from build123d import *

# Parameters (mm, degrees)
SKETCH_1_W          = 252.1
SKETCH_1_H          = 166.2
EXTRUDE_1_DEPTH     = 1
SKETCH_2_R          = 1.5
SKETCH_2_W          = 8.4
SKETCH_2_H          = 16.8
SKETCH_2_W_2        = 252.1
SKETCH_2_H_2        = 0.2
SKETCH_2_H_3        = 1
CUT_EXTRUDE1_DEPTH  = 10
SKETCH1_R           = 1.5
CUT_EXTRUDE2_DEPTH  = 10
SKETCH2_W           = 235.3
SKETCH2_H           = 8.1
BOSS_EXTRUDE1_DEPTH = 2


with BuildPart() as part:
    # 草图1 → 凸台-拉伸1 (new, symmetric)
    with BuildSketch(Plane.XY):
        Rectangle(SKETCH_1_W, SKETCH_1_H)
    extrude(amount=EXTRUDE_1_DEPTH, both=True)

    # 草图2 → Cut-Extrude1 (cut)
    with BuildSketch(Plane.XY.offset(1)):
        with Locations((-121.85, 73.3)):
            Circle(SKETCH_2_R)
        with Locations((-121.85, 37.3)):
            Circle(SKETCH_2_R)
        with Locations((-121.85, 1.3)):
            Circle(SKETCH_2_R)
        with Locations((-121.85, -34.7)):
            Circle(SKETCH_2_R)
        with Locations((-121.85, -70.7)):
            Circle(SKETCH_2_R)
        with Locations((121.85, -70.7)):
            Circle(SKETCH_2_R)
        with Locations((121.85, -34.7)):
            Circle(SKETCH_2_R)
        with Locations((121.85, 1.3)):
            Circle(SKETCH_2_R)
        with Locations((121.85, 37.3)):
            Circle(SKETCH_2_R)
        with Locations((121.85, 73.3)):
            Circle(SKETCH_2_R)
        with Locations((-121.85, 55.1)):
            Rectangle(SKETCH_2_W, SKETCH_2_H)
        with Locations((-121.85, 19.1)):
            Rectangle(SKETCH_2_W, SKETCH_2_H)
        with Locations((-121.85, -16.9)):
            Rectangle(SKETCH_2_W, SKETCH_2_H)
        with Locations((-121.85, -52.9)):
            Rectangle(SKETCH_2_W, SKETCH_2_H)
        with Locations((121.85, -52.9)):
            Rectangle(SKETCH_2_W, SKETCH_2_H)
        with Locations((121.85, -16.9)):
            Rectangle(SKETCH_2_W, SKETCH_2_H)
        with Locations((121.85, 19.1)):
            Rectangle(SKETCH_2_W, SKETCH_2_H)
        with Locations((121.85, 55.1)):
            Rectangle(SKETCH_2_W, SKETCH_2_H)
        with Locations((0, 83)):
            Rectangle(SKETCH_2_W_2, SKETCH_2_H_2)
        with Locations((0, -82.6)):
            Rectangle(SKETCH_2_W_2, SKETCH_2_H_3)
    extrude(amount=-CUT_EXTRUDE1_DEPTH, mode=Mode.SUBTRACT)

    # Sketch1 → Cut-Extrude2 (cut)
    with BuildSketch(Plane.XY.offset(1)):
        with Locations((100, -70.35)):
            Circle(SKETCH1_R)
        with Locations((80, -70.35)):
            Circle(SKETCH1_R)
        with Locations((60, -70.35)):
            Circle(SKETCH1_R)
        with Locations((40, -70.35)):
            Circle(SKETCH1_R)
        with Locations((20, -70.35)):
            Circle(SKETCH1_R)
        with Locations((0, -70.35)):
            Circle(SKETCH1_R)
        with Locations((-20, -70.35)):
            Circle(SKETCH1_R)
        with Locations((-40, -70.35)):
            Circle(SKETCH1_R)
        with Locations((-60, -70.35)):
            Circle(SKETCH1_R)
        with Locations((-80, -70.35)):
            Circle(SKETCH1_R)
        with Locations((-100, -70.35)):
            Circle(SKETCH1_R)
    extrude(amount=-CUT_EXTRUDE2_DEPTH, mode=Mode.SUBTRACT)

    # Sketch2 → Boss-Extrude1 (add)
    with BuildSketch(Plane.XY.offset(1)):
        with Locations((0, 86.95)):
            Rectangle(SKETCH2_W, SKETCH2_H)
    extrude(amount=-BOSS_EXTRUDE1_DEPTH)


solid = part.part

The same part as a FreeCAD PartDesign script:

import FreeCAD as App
import Part
import Sketcher
Q = App.Units.Quantity

doc = App.newDocument("Part")
params = doc.addObject("Spreadsheet::Sheet", "Params")
for row, (alias, value) in enumerate([
    ("sketch1_width", "252.1 mm"),
    ("sketch1_height", "166.2 mm"),
    ("pad1_length", "2 mm"),
    ("sketch2_diameter", "3 mm"),
    ("sketch2_height", "1 mm"),
    ("sketch2_width", "8.4 mm"),
    ("sketch2_width2", "252.1 mm"),
    ("sketch2_height2", "16.8 mm"),
    ("pocket1_length", "10 mm"),
    ("sketch3_diameter", "3 mm"),
    ("pocket2_length", "10 mm"),
    ("sketch4_width", "235.3 mm"),
    ("sketch4_height", "8.1 mm"),
    ("pad2_length", "2 mm"),
], start=1):
    params.set(f"A{row}", alias)
    params.set(f"B{row}", "=" + value)
    params.setAlias(f"B{row}", alias)

body = doc.addObject("PartDesign::Body", "Body")

# Sketch on XY plane
sketch1 = doc.addObject("Sketcher::SketchObject", "Sketch")
body.addObject(sketch1)
sketch1.AttachmentSupport = (doc.XY_Plane, [""])
sketch1.MapMode = "FlatFace"
sketch1.addGeometry(Part.LineSegment(App.Vector(-126, 83, 0), App.Vector(-126, -83, 0)), False)
sketch1.addGeometry(Part.LineSegment(App.Vector(-126, -83, 0), App.Vector(126, -83, 0)), False)
sketch1.addGeometry(Part.LineSegment(App.Vector(126, -83, 0), App.Vector(126, 83, 0)), False)
sketch1.addGeometry(Part.LineSegment(App.Vector(126, 83, 0), App.Vector(-126, 83, 0)), False)
sketch1.addConstraint(Sketcher.Constraint("Coincident", 0, 2, 1, 1))
sketch1.addConstraint(Sketcher.Constraint("Coincident", 1, 2, 2, 1))
sketch1.addConstraint(Sketcher.Constraint("Coincident", 2, 2, 3, 1))
sketch1.addConstraint(Sketcher.Constraint("Coincident", 3, 2, 0, 1))
sketch1.addConstraint(Sketcher.Constraint("Vertical", 0))
sketch1.addConstraint(Sketcher.Constraint("Horizontal", 1))
sketch1.addConstraint(Sketcher.Constraint("Vertical", 2))
sketch1.addConstraint(Sketcher.Constraint("Horizontal", 3))
sketch1.addConstraint(Sketcher.Constraint("Symmetric", 0, 2, 2, 2, -1, 1))
sketch1.addConstraint(Sketcher.Constraint("DistanceX", 1, 1, 1, 2, Q("252.1 mm")))
sketch1.addConstraint(Sketcher.Constraint("DistanceY", 0, 2, 0, 1, Q("166.2 mm")))
sketch1.setExpression("Constraints[9]", "Params.sketch1_width")
sketch1.setExpression("Constraints[10]", "Params.sketch1_height")
pad1 = doc.addObject("PartDesign::Pad", "Pad")
body.addObject(pad1)
pad1.Profile = sketch1
pad1.setExpression("Length", "Params.pad1_length")
pad1.Midplane = True

# Sketch on XY plane
sketch2 = doc.addObject("Sketcher::SketchObject", "Sketch001")
body.addObject(sketch2)
sketch2.AttachmentSupport = (doc.XY_Plane, [""])
sketch2.MapMode = "FlatFace"
sketch2.AttachmentOffset = App.Placement(App.Vector(0, 0, 1), App.Rotation())
sketch2.addGeometry(Part.Circle(App.Vector(-121.85, 73.3, 0), App.Vector(0, 0, 1), 1.5), False)
sketch2.addGeometry(Part.Circle(App.Vector(-121.85, 37.3, 0), App.Vector(0, 0, 1), 1.5), False)
sketch2.addGeometry(Part.Circle(App.Vector(-121.85, 1.3, 0), App.Vector(0, 0, 1), 1.5), False)
sketch2.addGeometry(Part.Circle(App.Vector(-121.85, -34.7, 0), App.Vector(0, 0, 1), 1.5), False)
sketch2.addGeometry(Part.Circle(App.Vector(-121.85, -70.7, 0), App.Vector(0, 0, 1), 1.5), False)
sketch2.addGeometry(Part.Circle(App.Vector(121.85, -70.7, 0), App.Vector(0, 0, 1), 1.5), False)
sketch2.addGeometry(Part.Circle(App.Vector(121.85, -34.7, 0), App.Vector(0, 0, 1), 1.5), False)
sketch2.addGeometry(Part.Circle(App.Vector(121.85, 1.3, 0), App.Vector(0, 0, 1), 1.5), False)
sketch2.addGeometry(Part.Circle(App.Vector(121.85, 37.3, 0), App.Vector(0, 0, 1), 1.5), False)
sketch2.addGeometry(Part.Circle(App.Vector(121.85, 73.3, 0), App.Vector(0, 0, 1), 1.5), False)
sketch2.addGeometry(Part.LineSegment(App.Vector(-126.05, 63.5, 0), App.Vector(-126.05, 46.7, 0)), False)
sketch2.addGeometry(Part.LineSegment(App.Vector(-126.05, 46.7, 0), App.Vector(-117.65, 46.7, 0)), False)
sketch2.addGeometry(Part.LineSegment(App.Vector(-117.65, 46.7, 0), App.Vector(-117.65, 63.5, 0)), False)
sketch2.addGeometry(Part.LineSegment(App.Vector(-117.65, 63.5, 0), App.Vector(-126.05, 63.5, 0)), False)
sketch2.addGeometry(Part.LineSegment(App.Vector(-126.05, 27.5, 0), App.Vector(-126.05, 10.7, 0)), False)
sketch2.addGeometry(Part.LineSegment(App.Vector(-126.05, 10.7, 0), App.Vector(-117.65, 10.7, 0)), False)
sketch2.addGeometry(Part.LineSegment(App.Vector(-117.65, 10.7, 0), App.Vector(-117.65, 27.5, 0)), False)
sketch2.addGeometry(Part.LineSegment(App.Vector(-117.65, 27.5, 0), App.Vector(-126.05, 27.5, 0)), False)
sketch2.addGeometry(Part.LineSegment(App.Vector(-126.05, -8.5, 0), App.Vector(-126.05, -25.3, 0)), False)
sketch2.addGeometry(Part.LineSegment(App.Vector(-126.05, -25.3, 0), App.Vector(-117.65, -25.3, 0)), False)
sketch2.addGeometry(Part.LineSegment(App.Vector(-117.65, -25.3, 0), App.Vector(-117.65, -8.5, 0)), False)
sketch2.addGeometry(Part.LineSegment(App.Vector(-117.65, -8.5, 0), App.Vector(-126.05, -8.5, 0)), False)
sketch2.addGeometry(Part.LineSegment(App.Vector(-126.05, -44.5, 0), App.Vector(-126.05, -61.3, 0)), False)
sketch2.addGeometry(Part.LineSegment(App.Vector(-126.05, -61.3, 0), App.Vector(-117.65, -61.3, 0)), False)
sketch2.addGeometry(Part.LineSegment(App.Vector(-117.65, -61.3, 0), App.Vector(-117.65, -44.5, 0)), False)
sketch2.addGeometry(Part.LineSegment(App.Vector(-117.65, -44.5, 0), App.Vector(-126.05, -44.5, 0)), False)
sketch2.addGeometry(Part.LineSegment(App.Vector(117.65, -44.5, 0), App.Vector(117.65, -61.3, 0)), False)
sketch2.addGeometry(Part.LineSegment(App.Vector(117.65, -61.3, 0), App.Vector(126.05, -61.3, 0)), False)
sketch2.addGeometry(Part.LineSegment(App.Vector(126.05, -61.3, 0), App.Vector(126.05, -44.5, 0)), False)
sketch2.addGeometry(Part.LineSegment(App.Vector(126.05, -44.5, 0), App.Vector(117.65, -44.5, 0)), False)
sketch2.addGeometry(Part.LineSegment(App.Vector(117.65, -8.5, 0), App.Vector(117.65, -25.3, 0)), False)
sketch2.addGeometry(Part.LineSegment(App.Vector(117.65, -25.3, 0), App.Vector(126.05, -25.3, 0)), False)
sketch2.addGeometry(Part.LineSegment(App.Vector(126.05, -25.3, 0), App.Vector(126.05, -8.5, 0)), False)
sketch2.addGeometry(Part.LineSegment(App.Vector(126.05, -8.5, 0), App.Vector(117.65, -8.5, 0)), False)
sketch2.addGeometry(Part.LineSegment(App.Vector(117.65, 27.5, 0), App.Vector(117.65, 10.7, 0)), False)
sketch2.addGeometry(Part.LineSegment(App.Vector(117.65, 10.7, 0), App.Vector(126.05, 10.7, 0)), False)
sketch2.addGeometry(Part.LineSegment(App.Vector(126.05, 10.7, 0), App.Vector(126.05, 27.5, 0)), False)
sketch2.addGeometry(Part.LineSegment(App.Vector(126.05, 27.5, 0), App.Vector(117.65, 27.5, 0)), False)
sketch2.addGeometry(Part.LineSegment(App.Vector(117.65, 63.5, 0), App.Vector(117.65, 46.7, 0)), False)
sketch2.addGeometry(Part.LineSegment(App.Vector(117.65, 46.7, 0), App.Vector(126.05, 46.7, 0)), False)
sketch2.addGeometry(Part.LineSegment(App.Vector(126.05, 46.7, 0), App.Vector(126.05, 63.5, 0)), False)
sketch2.addGeometry(Part.LineSegment(App.Vector(126.05, 63.5, 0), App.Vector(117.65, 63.5, 0)), False)
sketch2.addGeometry(Part.LineSegment(App.Vector(-126.05, 83.1, 0), App.Vector(-126.05, 82.9, 0)), False)
sketch2.addGeometry(Part.LineSegment(App.Vector(-126.05, 82.9, 0), App.Vector(126.05, 82.9, 0)), False)
sketch2.addGeometry(Part.LineSegment(App.Vector(126.05, 82.9, 0), App.Vector(126.05, 83.1, 0)), False)
sketch2.addGeometry(Part.LineSegment(App.Vector(126.05, 83.1, 0), App.Vector(-126.05, 83.1, 0)), False)
sketch2.addGeometry(Part.LineSegment(App.Vector(-126.05, -82.1, 0), App.Vector(-126.05, -83.1, 0)), False)
sketch2.addGeometry(Part.LineSegment(App.Vector(-126.05, -83.1, 0), App.Vector(126.05, -83.1, 0)), False)
sketch2.addGeometry(Part.LineSegment(App.Vector(126.05, -83.1, 0), App.Vector(126.05, -82.1, 0)), False)
sketch2.addGeometry(Part.LineSegment(App.Vector(126.05, -82.1, 0), App.Vector(-126.05, -82.1, 0)), False)
sketch2.addConstraint(Sketcher.Constraint("Coincident", 10, 2, 11, 1))
sketch2.addConstraint(Sketcher.Constraint("Coincident", 11, 2, 12, 1))
sketch2.addConstraint(Sketcher.Constraint("Coincident", 12, 2, 13, 1))
sketch2.addConstraint(Sketcher.Constraint("Coincident", 13, 2, 10, 1))
sketch2.addConstraint(Sketcher.Constraint("Coincident", 14, 2, 15, 1))
sketch2.addConstraint(Sketcher.Constraint("Coincident", 15, 2, 16, 1))
sketch2.addConstraint(Sketcher.Constraint("Coincident", 16, 2, 17, 1))
sketch2.addConstraint(Sketcher.Constraint("Coincident", 17, 2, 14, 1))
sketch2.addConstraint(Sketcher.Constraint("Coincident", 18, 2, 19, 1))
sketch2.addConstraint(Sketcher.Constraint("Coincident", 19, 2, 20, 1))
sketch2.addConstraint(Sketcher.Constraint("Coincident", 20, 2, 21, 1))
sketch2.addConstraint(Sketcher.Constraint("Coincident", 21, 2, 18, 1))
sketch2.addConstraint(Sketcher.Constraint("Coincident", 22, 2, 23, 1))
sketch2.addConstraint(Sketcher.Constraint("Coincident", 23, 2, 24, 1))
sketch2.addConstraint(Sketcher.Constraint("Coincident", 24, 2, 25, 1))
sketch2.addConstraint(Sketcher.Constraint("Coincident", 25, 2, 22, 1))
sketch2.addConstraint(Sketcher.Constraint("Coincident", 26, 2, 27, 1))
sketch2.addConstraint(Sketcher.Constraint("Coincident", 27, 2, 28, 1))
sketch2.addConstraint(Sketcher.Constraint("Coincident", 28, 2, 29, 1))
sketch2.addConstraint(Sketcher.Constraint("Coincident", 29, 2, 26, 1))
sketch2.addConstraint(Sketcher.Constraint("Coincident", 30, 2, 31, 1))
sketch2.addConstraint(Sketcher.Constraint("Coincident", 31, 2, 32, 1))
sketch2.addConstraint(Sketcher.Constraint("Coincident", 32, 2, 33, 1))
sketch2.addConstraint(Sketcher.Constraint("Coincident", 33, 2, 30, 1))
sketch2.addConstraint(Sketcher.Constraint("Coincident", 34, 2, 35, 1))
sketch2.addConstraint(Sketcher.Constraint("Coincident", 35, 2, 36, 1))
sketch2.addConstraint(Sketcher.Constraint("Coincident", 36, 2, 37, 1))
sketch2.addConstraint(Sketcher.Constraint("Coincident", 37, 2, 34, 1))
sketch2.addConstraint(Sketcher.Constraint("Coincident", 38, 2, 39, 1))
sketch2.addConstraint(Sketcher.Constraint("Coincident", 39, 2, 40, 1))
sketch2.addConstraint(Sketcher.Constraint("Coincident", 40, 2, 41, 1))
sketch2.addConstraint(Sketcher.Constraint("Coincident", 41, 2, 38, 1))
sketch2.addConstraint(Sketcher.Constraint("Coincident", 42, 2, 43, 1))
sketch2.addConstraint(Sketcher.Constraint("Coincident", 43, 2, 44, 1))
sketch2.addConstraint(Sketcher.Constraint("Coincident", 44, 2, 45, 1))
sketch2.addConstraint(Sketcher.Constraint("Coincident", 45, 2, 42, 1))
sketch2.addConstraint(Sketcher.Constraint("Coincident", 46, 2, 47, 1))
sketch2.addConstraint(Sketcher.Constraint("Coincident", 47, 2, 48, 1))
sketch2.addConstraint(Sketcher.Constraint("Coincident", 48, 2, 49, 1))
sketch2.addConstraint(Sketcher.Constraint("Coincident", 49, 2, 46, 1))
sketch2.addConstraint(Sketcher.Constraint("Vertical", 10))
sketch2.addConstraint(Sketcher.Constraint("Horizontal", 11))
sketch2.addConstraint(Sketcher.Constraint("Vertical", 12))
sketch2.addConstraint(Sketcher.Constraint("Horizontal", 13))
sketch2.addConstraint(Sketcher.Constraint("Vertical", 14))
sketch2.addConstraint(Sketcher.Constraint("Horizontal", 15))
sketch2.addConstraint(Sketcher.Constraint("Vertical", 16))
sketch2.addConstraint(Sketcher.Constraint("Horizontal", 17))
sketch2.addConstraint(Sketcher.Constraint("Vertical", 18))
sketch2.addConstraint(Sketcher.Constraint("Horizontal", 19))
sketch2.addConstraint(Sketcher.Constraint("Vertical", 20))
sketch2.addConstraint(Sketcher.Constraint("Horizontal", 21))
sketch2.addConstraint(Sketcher.Constraint("Vertical", 22))
sketch2.addConstraint(Sketcher.Constraint("Horizontal", 23))
sketch2.addConstraint(Sketcher.Constraint("Vertical", 24))
sketch2.addConstraint(Sketcher.Constraint("Horizontal", 25))
sketch2.addConstraint(Sketcher.Constraint("Vertical", 26))
sketch2.addConstraint(Sketcher.Constraint("Horizontal", 27))
sketch2.addConstraint(Sketcher.Constraint("Vertical", 28))
sketch2.addConstraint(Sketcher.Constraint("Horizontal", 29))
sketch2.addConstraint(Sketcher.Constraint("Vertical", 30))
sketch2.addConstraint(Sketcher.Constraint("Horizontal", 31))
sketch2.addConstraint(Sketcher.Constraint("Vertical", 32))
sketch2.addConstraint(Sketcher.Constraint("Horizontal", 33))
sketch2.addConstraint(Sketcher.Constraint("Vertical", 34))
sketch2.addConstraint(Sketcher.Constraint("Horizontal", 35))
sketch2.addConstraint(Sketcher.Constraint("Vertical", 36))
sketch2.addConstraint(Sketcher.Constraint("Horizontal", 37))
sketch2.addConstraint(Sketcher.Constraint("Vertical", 38))
sketch2.addConstraint(Sketcher.Constraint("Horizontal", 39))
sketch2.addConstraint(Sketcher.Constraint("Vertical", 40))
sketch2.addConstraint(Sketcher.Constraint("Horizontal", 41))
sketch2.addConstraint(Sketcher.Constraint("Vertical", 42))
sketch2.addConstraint(Sketcher.Constraint("Horizontal", 43))
sketch2.addConstraint(Sketcher.Constraint("Vertical", 44))
sketch2.addConstraint(Sketcher.Constraint("Horizontal", 45))
sketch2.addConstraint(Sketcher.Constraint("Vertical", 46))
sketch2.addConstraint(Sketcher.Constraint("Horizontal", 47))
sketch2.addConstraint(Sketcher.Constraint("Vertical", 48))
sketch2.addConstraint(Sketcher.Constraint("Horizontal", 49))
sketch2.addConstraint(Sketcher.Constraint("Equal", 0, 1))
sketch2.addConstraint(Sketcher.Constraint("Equal", 1, 2))
sketch2.addConstraint(Sketcher.Constraint("Equal", 2, 3))
sketch2.addConstraint(Sketcher.Constraint("Equal", 3, 4))
sketch2.addConstraint(Sketcher.Constraint("Equal", 4, 5))
sketch2.addConstraint(Sketcher.Constraint("Equal", 5, 6))
sketch2.addConstraint(Sketcher.Constraint("Equal", 6, 7))
sketch2.addConstraint(Sketcher.Constraint("Equal", 7, 8))
sketch2.addConstraint(Sketcher.Constraint("Equal", 8, 9))
sketch2.addConstraint(Sketcher.Constraint("Symmetric", 44, 2, 46, 2, -1, 1))
sketch2.addConstraint(Sketcher.Constraint("Symmetric", 4, 3, 5, 3, -2))
sketch2.addConstraint(Sketcher.Constraint("Symmetric", 3, 3, 6, 3, -2))
sketch2.addConstraint(Sketcher.Constraint("Symmetric", 2, 3, 7, 3, -2))
sketch2.addConstraint(Sketcher.Constraint("Symmetric", 1, 3, 8, 3, -2))
sketch2.addConstraint(Sketcher.Constraint("Symmetric", 0, 3, 9, 3, -2))
sketch2.addConstraint(Sketcher.Constraint("Symmetric", 23, 2, 26, 2, -2))
sketch2.addConstraint(Sketcher.Constraint("Symmetric", 25, 2, 28, 2, -2))
sketch2.addConstraint(Sketcher.Constraint("Symmetric", 19, 2, 30, 2, -2))
sketch2.addConstraint(Sketcher.Constraint("Symmetric", 21, 2, 32, 2, -2))
sketch2.addConstraint(Sketcher.Constraint("Symmetric", 15, 2, 34, 2, -2))
sketch2.addConstraint(Sketcher.Constraint("Symmetric", 17, 2, 36, 2, -2))
sketch2.addConstraint(Sketcher.Constraint("Symmetric", 11, 2, 38, 2, -2))
sketch2.addConstraint(Sketcher.Constraint("Symmetric", 13, 2, 40, 2, -2))
sketch2.addConstraint(Sketcher.Constraint("Vertical", 0, 3, 1, 3))
sketch2.addConstraint(Sketcher.Constraint("Vertical", 1, 3, 2, 3))
sketch2.addConstraint(Sketcher.Constraint("Vertical", 2, 3, 3, 3))
sketch2.addConstraint(Sketcher.Constraint("Vertical", 3, 3, 4, 3))
sketch2.addConstraint(Sketcher.Constraint("Vertical", 13, 2, 14, 2))
sketch2.addConstraint(Sketcher.Constraint("Vertical", 12, 2, 15, 2))
sketch2.addConstraint(Sketcher.Constraint("Vertical", 17, 2, 18, 2))
sketch2.addConstraint(Sketcher.Constraint("Vertical", 16, 2, 19, 2))
sketch2.addConstraint(Sketcher.Constraint("Vertical", 21, 2, 22, 2))
sketch2.addConstraint(Sketcher.Constraint("Vertical", 20, 2, 23, 2))
sketch2.addConstraint(Sketcher.Constraint("Vertical", 25, 2, 42, 2))
sketch2.addConstraint(Sketcher.Constraint("Vertical", 40, 2, 43, 2))
sketch2.addConstraint(Sketcher.Constraint("Vertical", 44, 2, 47, 2))
sketch2.addConstraint(Sketcher.Constraint("Equal", 12, 14))
sketch2.addConstraint(Sketcher.Constraint("Equal", 16, 18))
sketch2.addConstraint(Sketcher.Constraint("Equal", 20, 22))
sketch2.addConstraint(Sketcher.Constraint("Diameter", 0, Q("3 mm")))
sketch2.addConstraint(Sketcher.Constraint("DistanceY", 46, 2, 46, 1, Q("1 mm")))
sketch2.addConstraint(Sketcher.Constraint("DistanceX", 11, 1, 11, 2, Q("8.4 mm")))
sketch2.addConstraint(Sketcher.Constraint("DistanceX", 43, 1, 43, 2, Q("252.1 mm")))
sketch2.addConstraint(Sketcher.Constraint("DistanceY", 10, 2, 10, 1, Q("16.8 mm")))
sketch2.addConstraint(Sketcher.Constraint("DistanceY", 42, 2, 42, 1, Q("0.2 mm")))
sketch2.addConstraint(Sketcher.Constraint("DistanceY", 1, 3, 0, 3, Q("36 mm")))
sketch2.addConstraint(Sketcher.Constraint("DistanceY", 2, 3, 1, 3, Q("36 mm")))
sketch2.addConstraint(Sketcher.Constraint("DistanceY", 3, 3, 2, 3, Q("36 mm")))
sketch2.addConstraint(Sketcher.Constraint("DistanceY", 4, 3, 3, 3, Q("36 mm")))
sketch2.addConstraint(Sketcher.Constraint("DistanceY", 14, 2, 10, 2, Q("36 mm")))
sketch2.addConstraint(Sketcher.Constraint("DistanceY", 18, 2, 14, 2, Q("36 mm")))
sketch2.addConstraint(Sketcher.Constraint("DistanceY", 22, 2, 18, 2, Q("36 mm")))
sketch2.addConstraint(Sketcher.Constraint("DistanceY", -1, 1, 0, 3, Q("73.3 mm")))
sketch2.addConstraint(Sketcher.Constraint("DistanceY", -1, 1, 10, 2, Q("46.7 mm")))
sketch2.addConstraint(Sketcher.Constraint("DistanceY", -1, 1, 42, 2, Q("82.9 mm")))
sketch2.addConstraint(Sketcher.Constraint("DistanceX", 4, 3, 5, 3, Q("243.7 mm")))
sketch2.setExpression("Constraints[119]", "Params.sketch2_diameter")
sketch2.setExpression("Constraints[120]", "Params.sketch2_height")
sketch2.setExpression("Constraints[121]", "Params.sketch2_width")
sketch2.setExpression("Constraints[122]", "Params.sketch2_width2")
sketch2.setExpression("Constraints[123]", "Params.sketch2_height2")
pocket1 = doc.addObject("PartDesign::Pocket", "Pocket")
body.addObject(pocket1)
pocket1.Profile = sketch2
pocket1.setExpression("Length", "Params.pocket1_length")

# Sketch on XY plane
sketch3 = doc.addObject("Sketcher::SketchObject", "Sketch002")
body.addObject(sketch3)
sketch3.AttachmentSupport = (doc.XY_Plane, [""])
sketch3.MapMode = "FlatFace"
sketch3.AttachmentOffset = App.Placement(App.Vector(0, 0, 1), App.Rotation())
sketch3.addGeometry(Part.Circle(App.Vector(100, -70.3, 0), App.Vector(0, 0, 1), 1.5), False)
sketch3.addGeometry(Part.Circle(App.Vector(80, -70.3, 0), App.Vector(0, 0, 1), 1.5), False)
sketch3.addGeometry(Part.Circle(App.Vector(60, -70.3, 0), App.Vector(0, 0, 1), 1.5), False)
sketch3.addGeometry(Part.Circle(App.Vector(40, -70.3, 0), App.Vector(0, 0, 1), 1.5), False)
sketch3.addGeometry(Part.Circle(App.Vector(20, -70.3, 0), App.Vector(0, 0, 1), 1.5), False)
sketch3.addGeometry(Part.Circle(App.Vector(0, -70.3, 0), App.Vector(0, 0, 1), 1.5), False)
sketch3.addGeometry(Part.Circle(App.Vector(-20, -70.3, 0), App.Vector(0, 0, 1), 1.5), False)
sketch3.addGeometry(Part.Circle(App.Vector(-40, -70.3, 0), App.Vector(0, 0, 1), 1.5), False)
sketch3.addGeometry(Part.Circle(App.Vector(-60, -70.3, 0), App.Vector(0, 0, 1), 1.5), False)
sketch3.addGeometry(Part.Circle(App.Vector(-80, -70.3, 0), App.Vector(0, 0, 1), 1.5), False)
sketch3.addGeometry(Part.Circle(App.Vector(-100, -70.3, 0), App.Vector(0, 0, 1), 1.5), False)
sketch3.addConstraint(Sketcher.Constraint("Equal", 0, 1))
sketch3.addConstraint(Sketcher.Constraint("Equal", 1, 2))
sketch3.addConstraint(Sketcher.Constraint("Equal", 2, 3))
sketch3.addConstraint(Sketcher.Constraint("Equal", 3, 4))
sketch3.addConstraint(Sketcher.Constraint("Equal", 4, 5))
sketch3.addConstraint(Sketcher.Constraint("Equal", 5, 6))
sketch3.addConstraint(Sketcher.Constraint("Equal", 6, 7))
sketch3.addConstraint(Sketcher.Constraint("Equal", 7, 8))
sketch3.addConstraint(Sketcher.Constraint("Equal", 8, 9))
sketch3.addConstraint(Sketcher.Constraint("Equal", 9, 10))
sketch3.addConstraint(Sketcher.Constraint("Symmetric", 4, 3, 6, 3, -2))
sketch3.addConstraint(Sketcher.Constraint("Symmetric", 3, 3, 7, 3, -2))
sketch3.addConstraint(Sketcher.Constraint("Symmetric", 2, 3, 8, 3, -2))
sketch3.addConstraint(Sketcher.Constraint("Symmetric", 1, 3, 9, 3, -2))
sketch3.addConstraint(Sketcher.Constraint("Symmetric", 0, 3, 10, 3, -2))
sketch3.addConstraint(Sketcher.Constraint("PointOnObject", 5, 3, -2))
sketch3.addConstraint(Sketcher.Constraint("Horizontal", 0, 3, 1, 3))
sketch3.addConstraint(Sketcher.Constraint("Horizontal", 1, 3, 2, 3))
sketch3.addConstraint(Sketcher.Constraint("Horizontal", 2, 3, 3, 3))
sketch3.addConstraint(Sketcher.Constraint("Horizontal", 3, 3, 4, 3))
sketch3.addConstraint(Sketcher.Constraint("Horizontal", 4, 3, 5, 3))
sketch3.addConstraint(Sketcher.Constraint("Diameter", 0, Q("3 mm")))
sketch3.addConstraint(Sketcher.Constraint("DistanceX", -1, 1, 0, 3, Q("100 mm")))
sketch3.addConstraint(Sketcher.Constraint("DistanceX", -1, 1, 1, 3, Q("80 mm")))
sketch3.addConstraint(Sketcher.Constraint("DistanceX", -1, 1, 2, 3, Q("60 mm")))
sketch3.addConstraint(Sketcher.Constraint("DistanceX", -1, 1, 3, 3, Q("40 mm")))
sketch3.addConstraint(Sketcher.Constraint("DistanceX", -1, 1, 4, 3, Q("20 mm")))
sketch3.addConstraint(Sketcher.Constraint("DistanceY", 0, 3, -1, 1, Q("70.35 mm")))
sketch3.setExpression("Constraints[21]", "Params.sketch3_diameter")
pocket2 = doc.addObject("PartDesign::Pocket", "Pocket001")
body.addObject(pocket2)
pocket2.Profile = sketch3
pocket2.setExpression("Length", "Params.pocket2_length")

# Sketch on XY plane
sketch4 = doc.addObject("Sketcher::SketchObject", "Sketch003")
body.addObject(sketch4)
sketch4.AttachmentSupport = (doc.XY_Plane, [""])
sketch4.MapMode = "FlatFace"
sketch4.AttachmentOffset = App.Placement(App.Vector(0, 0, 1), App.Rotation())
sketch4.addGeometry(Part.LineSegment(App.Vector(-118, 91, 0), App.Vector(-118, 83, 0)), False)
sketch4.addGeometry(Part.LineSegment(App.Vector(-118, 83, 0), App.Vector(118, 83, 0)), False)
sketch4.addGeometry(Part.LineSegment(App.Vector(118, 83, 0), App.Vector(118, 91, 0)), False)
sketch4.addGeometry(Part.LineSegment(App.Vector(118, 91, 0), App.Vector(-118, 91, 0)), False)
sketch4.addConstraint(Sketcher.Constraint("Coincident", 0, 2, 1, 1))
sketch4.addConstraint(Sketcher.Constraint("Coincident", 1, 2, 2, 1))
sketch4.addConstraint(Sketcher.Constraint("Coincident", 2, 2, 3, 1))
sketch4.addConstraint(Sketcher.Constraint("Coincident", 3, 2, 0, 1))
sketch4.addConstraint(Sketcher.Constraint("Vertical", 0))
sketch4.addConstraint(Sketcher.Constraint("Horizontal", 1))
sketch4.addConstraint(Sketcher.Constraint("Vertical", 2))
sketch4.addConstraint(Sketcher.Constraint("Horizontal", 3))
sketch4.addConstraint(Sketcher.Constraint("DistanceX", 1, 1, 1, 2, Q("235.3 mm")))
sketch4.addConstraint(Sketcher.Constraint("DistanceY", 0, 2, 0, 1, Q("8.1 mm")))
sketch4.addConstraint(Sketcher.Constraint("DistanceY", -1, 1, 2, 2, Q("91 mm")))
sketch4.addConstraint(Sketcher.Constraint("DistanceX", 0, 2, -1, 1, Q("117.65 mm")))
sketch4.setExpression("Constraints[8]", "Params.sketch4_width")
sketch4.setExpression("Constraints[9]", "Params.sketch4_height")
pad2 = doc.addObject("PartDesign::Pad", "Pad001")
body.addObject(pad2)
pad2.Profile = sketch4
pad2.setExpression("Length", "Params.pad2_length")
pad2.Reversed = True

doc.recompute()
